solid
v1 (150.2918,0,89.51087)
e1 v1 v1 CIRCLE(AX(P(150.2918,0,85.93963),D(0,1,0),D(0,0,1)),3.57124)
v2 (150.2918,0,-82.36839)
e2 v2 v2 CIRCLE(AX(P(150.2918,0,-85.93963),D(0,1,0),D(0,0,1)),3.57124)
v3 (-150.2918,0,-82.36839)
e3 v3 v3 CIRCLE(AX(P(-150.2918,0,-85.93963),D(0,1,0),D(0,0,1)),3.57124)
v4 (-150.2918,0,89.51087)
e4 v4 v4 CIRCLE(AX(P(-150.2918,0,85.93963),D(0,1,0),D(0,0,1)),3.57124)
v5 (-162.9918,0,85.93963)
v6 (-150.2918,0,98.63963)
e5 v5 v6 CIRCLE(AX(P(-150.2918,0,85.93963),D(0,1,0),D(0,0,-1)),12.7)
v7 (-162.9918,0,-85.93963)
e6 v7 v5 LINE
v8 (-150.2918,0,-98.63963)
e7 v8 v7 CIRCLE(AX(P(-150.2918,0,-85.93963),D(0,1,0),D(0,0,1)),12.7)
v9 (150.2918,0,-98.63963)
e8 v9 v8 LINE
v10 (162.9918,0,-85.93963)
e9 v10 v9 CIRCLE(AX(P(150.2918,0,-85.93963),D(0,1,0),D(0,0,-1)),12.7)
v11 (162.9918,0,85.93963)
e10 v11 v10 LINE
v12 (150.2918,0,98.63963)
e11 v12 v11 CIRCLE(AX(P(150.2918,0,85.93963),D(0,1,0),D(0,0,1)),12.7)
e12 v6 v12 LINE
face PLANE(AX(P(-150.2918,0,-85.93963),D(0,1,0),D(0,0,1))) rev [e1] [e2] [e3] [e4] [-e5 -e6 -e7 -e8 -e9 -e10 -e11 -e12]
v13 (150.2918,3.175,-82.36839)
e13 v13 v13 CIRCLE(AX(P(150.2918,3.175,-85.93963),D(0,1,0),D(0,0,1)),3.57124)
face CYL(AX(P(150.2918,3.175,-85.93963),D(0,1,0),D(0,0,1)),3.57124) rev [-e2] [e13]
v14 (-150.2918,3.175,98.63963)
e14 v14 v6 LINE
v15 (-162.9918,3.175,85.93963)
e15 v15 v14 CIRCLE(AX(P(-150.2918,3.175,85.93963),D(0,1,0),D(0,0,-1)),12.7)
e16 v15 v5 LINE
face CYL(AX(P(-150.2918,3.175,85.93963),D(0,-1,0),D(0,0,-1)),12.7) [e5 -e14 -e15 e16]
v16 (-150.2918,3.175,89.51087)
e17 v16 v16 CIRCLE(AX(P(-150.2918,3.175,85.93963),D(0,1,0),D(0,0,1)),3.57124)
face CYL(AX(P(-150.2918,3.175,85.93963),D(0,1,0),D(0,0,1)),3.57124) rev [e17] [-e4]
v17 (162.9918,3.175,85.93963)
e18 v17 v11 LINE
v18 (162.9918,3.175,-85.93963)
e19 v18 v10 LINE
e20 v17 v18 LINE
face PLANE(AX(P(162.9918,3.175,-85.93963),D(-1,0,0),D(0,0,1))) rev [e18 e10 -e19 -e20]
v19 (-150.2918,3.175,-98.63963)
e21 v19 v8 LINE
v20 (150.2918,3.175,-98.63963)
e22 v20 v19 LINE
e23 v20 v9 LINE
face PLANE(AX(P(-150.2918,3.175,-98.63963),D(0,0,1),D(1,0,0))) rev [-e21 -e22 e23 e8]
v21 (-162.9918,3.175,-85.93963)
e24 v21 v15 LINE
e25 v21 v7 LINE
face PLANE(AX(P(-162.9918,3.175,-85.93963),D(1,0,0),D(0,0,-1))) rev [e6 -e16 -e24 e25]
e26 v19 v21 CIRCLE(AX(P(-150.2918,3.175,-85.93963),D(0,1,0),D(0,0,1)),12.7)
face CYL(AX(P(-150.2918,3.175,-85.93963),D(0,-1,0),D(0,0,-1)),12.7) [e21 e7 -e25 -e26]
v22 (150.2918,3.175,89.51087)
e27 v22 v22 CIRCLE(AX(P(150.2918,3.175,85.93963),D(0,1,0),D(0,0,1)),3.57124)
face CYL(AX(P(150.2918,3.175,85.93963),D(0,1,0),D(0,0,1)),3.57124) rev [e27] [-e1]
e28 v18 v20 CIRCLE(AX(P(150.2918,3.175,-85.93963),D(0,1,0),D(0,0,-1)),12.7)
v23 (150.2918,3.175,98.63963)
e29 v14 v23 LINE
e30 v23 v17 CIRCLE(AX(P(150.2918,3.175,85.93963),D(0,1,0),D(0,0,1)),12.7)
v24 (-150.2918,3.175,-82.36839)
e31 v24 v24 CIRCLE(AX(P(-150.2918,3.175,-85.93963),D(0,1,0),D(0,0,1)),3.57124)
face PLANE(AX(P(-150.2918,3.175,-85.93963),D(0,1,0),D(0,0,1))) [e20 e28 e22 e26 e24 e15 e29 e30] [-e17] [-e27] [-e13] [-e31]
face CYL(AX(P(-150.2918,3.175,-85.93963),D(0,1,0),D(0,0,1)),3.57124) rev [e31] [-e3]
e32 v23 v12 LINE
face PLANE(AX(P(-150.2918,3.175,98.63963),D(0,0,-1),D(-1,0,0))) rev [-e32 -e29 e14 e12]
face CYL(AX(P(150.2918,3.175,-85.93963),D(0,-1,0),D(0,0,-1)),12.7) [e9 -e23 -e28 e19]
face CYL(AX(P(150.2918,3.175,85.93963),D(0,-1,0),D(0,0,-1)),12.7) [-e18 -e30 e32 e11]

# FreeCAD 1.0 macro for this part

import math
import FreeCAD as App
import Part
import Sketcher
Q = App.Units.Quantity

doc = App.newDocument("Part")
body = doc.addObject("PartDesign::Body", "Body")

sketch1 = body.newObject("Sketcher::SketchObject", "Sketch")
sketch1.AttachmentSupport = (doc.getObject("XZ_Plane"), [""])
sketch1.MapMode = "FlatFace"
sketch1.addGeometry([
    Part.LineSegment(App.Vector(150, -99, 0), App.Vector(-150, -99, 0)),
    Part.ArcOfCircle(Part.Circle(App.Vector(-150, -86, 0), App.Vector(0, 0, 1), 13), math.radians(180), math.radians(270)),
    Part.LineSegment(App.Vector(-163, -86, 0), App.Vector(-163, 86, 0)),
    Part.ArcOfCircle(Part.Circle(App.Vector(-150, 86, 0), App.Vector(0, 0, 1), 13), math.radians(90), math.radians(180)),
    Part.LineSegment(App.Vector(-150, 99, 0), App.Vector(150, 99, 0)),
    Part.ArcOfCircle(Part.Circle(App.Vector(150, 86, 0), App.Vector(0, 0, 1), 13), math.radians(0), math.radians(90)),
    Part.LineSegment(App.Vector(163, 86, 0), App.Vector(163, -86, 0)),
    Part.ArcOfCircle(Part.Circle(App.Vector(150, -86, 0), App.Vector(0, 0, 1), 13), math.radians(-90), math.radians(0)),
], False)
sketch1.addConstraint([
    Sketcher.Constraint("Tangent", 0, 2, 1, 2),
    Sketcher.Constraint("Tangent", 1, 1, 2, 1),
    Sketcher.Constraint("Tangent", 2, 2, 3, 2),
    Sketcher.Constraint("Tangent", 3, 1, 4, 1),
    Sketcher.Constraint("Tangent", 4, 2, 5, 2),
    Sketcher.Constraint("Tangent", 5, 1, 6, 1),
    Sketcher.Constraint("Tangent", 6, 2, 7, 2),
    Sketcher.Constraint("Tangent", 7, 1, 0, 1),
    Sketcher.Constraint("Horizontal", 0),
    Sketcher.Constraint("Vertical", 2),
    Sketcher.Constraint("Horizontal", 4),
    Sketcher.Constraint("Vertical", 6),
    Sketcher.Constraint("Equal", 1, 3),
    Sketcher.Constraint("Equal", 3, 5),
    Sketcher.Constraint("Equal", 5, 7),
    Sketcher.Constraint("Symmetric", 1, 3, 5, 3, -1, 1),
    Sketcher.Constraint("Radius", 1, Q("0.5 in")),
    Sketcher.Constraint("DistanceX", 0, 2, 0, 1, Q("11.834 in")),
    Sketcher.Constraint("DistanceY", 2, 1, 2, 2, Q("6.7669 in")),
])
pad1 = body.newObject("PartDesign::Pad", "Pad")
pad1.Profile = sketch1
pad1.Length = Q("0.125 in")
pad1.Reversed = True

sketch2 = body.newObject("Sketcher::SketchObject", "Sketch001")
sketch2.AttachmentSupport = (doc.getObject("XZ_Plane"), [""])
sketch2.MapMode = "FlatFace"
sketch2.AttachmentOffset = App.Placement(App.Vector(0, 0, -0.125 * 25.4), App.Rotation())
sketch2.addGeometry([
    Part.Circle(App.Vector(-150.3, -85.9, 0), App.Vector(0, 0, 1), 3.6),
    Part.Circle(App.Vector(150.3, -85.9, 0), App.Vector(0, 0, 1), 3.6),
    Part.Circle(App.Vector(150.3, 85.9, 0), App.Vector(0, 0, 1), 3.6),
    Part.Circle(App.Vector(-150.3, 85.9, 0), App.Vector(0, 0, 1), 3.6),
], False)
sketch2.addConstraint([
    Sketcher.Constraint("Equal", 0, 1),
    Sketcher.Constraint("Equal", 1, 2),
    Sketcher.Constraint("Equal", 2, 3),
    Sketcher.Constraint("Symmetric", 0, 3, 2, 3, -1, 1),
    Sketcher.Constraint("Symmetric", 1, 3, 3, 3, -1, 1),
    Sketcher.Constraint("Symmetric", 0, 3, 1, 3, -2),
    Sketcher.Constraint("Diameter", 0, Q("0.2812 in")),
    Sketcher.Constraint("DistanceX", 0, 3, -1, 1, Q("5.917 in")),
    Sketcher.Constraint("DistanceY", 1, 3, 2, 3, Q("6.7669 in")),
])
doc.recompute()
hole = body.newObject("PartDesign::Hole", "Hole")
hole.Profile = sketch2
hole.ThreadType = "None"
hole.Diameter = Q("0.2812 in")
hole.DepthType = "ThroughAll"
hole.Reversed = True

doc.recompute()
